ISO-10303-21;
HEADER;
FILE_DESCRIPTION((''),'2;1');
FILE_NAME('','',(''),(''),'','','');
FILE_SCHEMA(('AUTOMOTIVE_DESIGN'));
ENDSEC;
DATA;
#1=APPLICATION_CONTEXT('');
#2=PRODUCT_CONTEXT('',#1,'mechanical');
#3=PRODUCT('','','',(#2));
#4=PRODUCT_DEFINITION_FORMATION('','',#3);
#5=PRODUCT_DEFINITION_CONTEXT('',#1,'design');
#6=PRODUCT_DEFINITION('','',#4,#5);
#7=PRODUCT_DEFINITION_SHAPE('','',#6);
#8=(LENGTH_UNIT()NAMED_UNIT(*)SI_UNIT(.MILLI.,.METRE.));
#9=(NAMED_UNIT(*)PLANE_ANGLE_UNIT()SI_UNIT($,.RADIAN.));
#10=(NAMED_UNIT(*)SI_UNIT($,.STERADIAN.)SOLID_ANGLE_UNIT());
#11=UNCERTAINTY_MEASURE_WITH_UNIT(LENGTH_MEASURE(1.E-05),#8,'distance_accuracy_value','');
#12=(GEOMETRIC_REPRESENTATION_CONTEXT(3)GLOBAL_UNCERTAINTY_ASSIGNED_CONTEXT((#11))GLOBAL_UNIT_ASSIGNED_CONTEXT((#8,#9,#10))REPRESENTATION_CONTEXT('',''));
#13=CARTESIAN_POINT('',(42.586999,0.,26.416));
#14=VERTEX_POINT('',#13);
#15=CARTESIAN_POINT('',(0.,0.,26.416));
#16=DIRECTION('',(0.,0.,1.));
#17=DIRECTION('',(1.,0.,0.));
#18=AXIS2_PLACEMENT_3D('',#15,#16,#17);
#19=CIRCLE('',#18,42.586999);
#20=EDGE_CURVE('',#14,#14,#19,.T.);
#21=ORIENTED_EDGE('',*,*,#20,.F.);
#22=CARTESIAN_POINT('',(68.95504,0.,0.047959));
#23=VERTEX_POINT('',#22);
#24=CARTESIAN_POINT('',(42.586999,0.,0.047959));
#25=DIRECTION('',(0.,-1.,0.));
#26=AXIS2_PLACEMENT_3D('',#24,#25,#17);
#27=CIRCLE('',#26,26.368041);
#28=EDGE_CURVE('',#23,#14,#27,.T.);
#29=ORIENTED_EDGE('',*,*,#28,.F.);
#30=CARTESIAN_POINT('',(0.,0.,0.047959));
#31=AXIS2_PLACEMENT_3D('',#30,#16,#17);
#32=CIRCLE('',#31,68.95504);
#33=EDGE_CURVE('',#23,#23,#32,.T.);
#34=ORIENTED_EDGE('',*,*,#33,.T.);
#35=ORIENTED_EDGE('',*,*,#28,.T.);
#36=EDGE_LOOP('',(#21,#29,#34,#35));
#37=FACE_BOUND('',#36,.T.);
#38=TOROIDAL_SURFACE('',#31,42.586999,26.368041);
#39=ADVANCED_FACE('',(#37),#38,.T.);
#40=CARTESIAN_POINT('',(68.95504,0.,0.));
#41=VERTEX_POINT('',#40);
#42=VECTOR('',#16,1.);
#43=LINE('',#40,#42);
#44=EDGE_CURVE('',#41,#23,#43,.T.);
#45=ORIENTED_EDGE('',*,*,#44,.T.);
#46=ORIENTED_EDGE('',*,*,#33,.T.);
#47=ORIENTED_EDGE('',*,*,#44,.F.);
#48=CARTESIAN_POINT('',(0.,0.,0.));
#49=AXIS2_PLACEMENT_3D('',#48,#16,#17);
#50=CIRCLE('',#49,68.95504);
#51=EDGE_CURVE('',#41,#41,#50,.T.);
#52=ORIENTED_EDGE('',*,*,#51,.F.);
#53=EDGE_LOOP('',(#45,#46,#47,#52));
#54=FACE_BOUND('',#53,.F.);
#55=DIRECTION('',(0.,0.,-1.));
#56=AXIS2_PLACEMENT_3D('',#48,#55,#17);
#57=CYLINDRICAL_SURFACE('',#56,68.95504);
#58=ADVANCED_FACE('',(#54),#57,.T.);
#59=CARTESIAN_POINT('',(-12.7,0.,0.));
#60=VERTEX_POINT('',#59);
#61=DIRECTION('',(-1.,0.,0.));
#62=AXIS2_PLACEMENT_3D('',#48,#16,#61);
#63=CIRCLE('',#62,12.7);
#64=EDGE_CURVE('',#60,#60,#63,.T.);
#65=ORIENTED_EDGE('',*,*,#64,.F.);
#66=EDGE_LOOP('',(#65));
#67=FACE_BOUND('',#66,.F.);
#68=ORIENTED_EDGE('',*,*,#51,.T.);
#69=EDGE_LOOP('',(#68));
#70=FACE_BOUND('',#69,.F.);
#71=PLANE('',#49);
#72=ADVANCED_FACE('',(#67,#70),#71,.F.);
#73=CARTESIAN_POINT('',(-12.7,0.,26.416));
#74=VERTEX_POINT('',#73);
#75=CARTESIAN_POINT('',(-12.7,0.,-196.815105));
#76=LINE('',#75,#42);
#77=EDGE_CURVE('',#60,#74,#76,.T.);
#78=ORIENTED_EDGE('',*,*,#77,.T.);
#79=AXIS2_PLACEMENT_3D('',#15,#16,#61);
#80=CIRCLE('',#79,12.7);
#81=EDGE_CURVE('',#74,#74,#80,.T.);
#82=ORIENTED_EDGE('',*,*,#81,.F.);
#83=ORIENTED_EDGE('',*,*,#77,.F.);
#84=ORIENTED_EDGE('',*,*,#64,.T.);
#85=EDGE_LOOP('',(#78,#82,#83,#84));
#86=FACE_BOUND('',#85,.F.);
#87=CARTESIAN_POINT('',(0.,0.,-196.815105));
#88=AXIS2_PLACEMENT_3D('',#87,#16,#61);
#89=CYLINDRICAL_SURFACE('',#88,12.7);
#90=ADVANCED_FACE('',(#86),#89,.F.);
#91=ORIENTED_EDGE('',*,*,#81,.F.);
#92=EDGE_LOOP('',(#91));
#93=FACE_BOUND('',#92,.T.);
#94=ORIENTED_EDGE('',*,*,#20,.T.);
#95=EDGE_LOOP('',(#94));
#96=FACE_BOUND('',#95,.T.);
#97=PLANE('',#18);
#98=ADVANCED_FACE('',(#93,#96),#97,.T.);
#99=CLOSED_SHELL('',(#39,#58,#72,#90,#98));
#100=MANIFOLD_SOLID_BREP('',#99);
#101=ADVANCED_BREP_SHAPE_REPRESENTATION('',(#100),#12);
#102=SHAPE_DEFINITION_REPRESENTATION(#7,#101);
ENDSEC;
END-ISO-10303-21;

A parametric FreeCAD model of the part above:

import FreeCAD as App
import Part
import Sketcher
Q = App.Units.Quantity


def edges_at(feature, points):
    """Names of the edges that pass closest to the given points."""
    edges = feature.Shape.Edges
    near = lambda p: min(range(len(edges)), key=lambda i: edges[i].distToShape(Part.Vertex(*p))[0])
    return sorted({f"Edge{near(p) + 1}" for p in points})

doc = App.newDocument("Part")
body = doc.addObject("PartDesign::Body", "Body")

# Sketch on XY plane
sketch1 = doc.addObject("Sketcher::SketchObject", "Sketch")
body.addObject(sketch1)
sketch1.AttachmentSupport = (doc.XY_Plane, [""])
sketch1.MapMode = "FlatFace"
sketch1.addGeometry(Part.Circle(App.Vector(0, 0, 0), App.Vector(0, 0, 1), 68.95504), False)
sketch1.addConstraint([
    Sketcher.Constraint("Coincident", 0, 3, -1, 1),
    Sketcher.Constraint("Diameter", 0, Q("137.91008 mm")),
])
pad1 = doc.addObject("PartDesign::Pad", "Pad")
body.addObject(pad1)
pad1.Profile = sketch1
pad1.Length = Q("1.04 in")
doc.recompute()

fillet = doc.addObject("PartDesign::Fillet", "Fillet")
body.addObject(fillet)
fillet.Base = (pad1, edges_at(pad1, [(-68.955, 0, 26.416)]))
fillet.Radius = 26.368041

# Sketch on XY plane
sketch2 = doc.addObject("Sketcher::SketchObject", "Sketch001")
body.addObject(sketch2)
sketch2.AttachmentSupport = (doc.XY_Plane, [""])
sketch2.MapMode = "FlatFace"
sketch2.addGeometry(Part.Circle(App.Vector(0, 0, 0), App.Vector(0, 0, 1), 12.7), False)
sketch2.addConstraint([
    Sketcher.Constraint("Coincident", 0, 3, -1, 1),
    Sketcher.Constraint("Diameter", 0, Q("1 in")),
])
doc.recompute()
hole = doc.addObject("PartDesign::Hole", "Hole")
body.addObject(hole)
hole.Profile = sketch2
hole.ThreadType = "None"
hole.Diameter = Q("1 in")
hole.DepthType = "ThroughAll"
hole.Reversed = True

doc.recompute()
